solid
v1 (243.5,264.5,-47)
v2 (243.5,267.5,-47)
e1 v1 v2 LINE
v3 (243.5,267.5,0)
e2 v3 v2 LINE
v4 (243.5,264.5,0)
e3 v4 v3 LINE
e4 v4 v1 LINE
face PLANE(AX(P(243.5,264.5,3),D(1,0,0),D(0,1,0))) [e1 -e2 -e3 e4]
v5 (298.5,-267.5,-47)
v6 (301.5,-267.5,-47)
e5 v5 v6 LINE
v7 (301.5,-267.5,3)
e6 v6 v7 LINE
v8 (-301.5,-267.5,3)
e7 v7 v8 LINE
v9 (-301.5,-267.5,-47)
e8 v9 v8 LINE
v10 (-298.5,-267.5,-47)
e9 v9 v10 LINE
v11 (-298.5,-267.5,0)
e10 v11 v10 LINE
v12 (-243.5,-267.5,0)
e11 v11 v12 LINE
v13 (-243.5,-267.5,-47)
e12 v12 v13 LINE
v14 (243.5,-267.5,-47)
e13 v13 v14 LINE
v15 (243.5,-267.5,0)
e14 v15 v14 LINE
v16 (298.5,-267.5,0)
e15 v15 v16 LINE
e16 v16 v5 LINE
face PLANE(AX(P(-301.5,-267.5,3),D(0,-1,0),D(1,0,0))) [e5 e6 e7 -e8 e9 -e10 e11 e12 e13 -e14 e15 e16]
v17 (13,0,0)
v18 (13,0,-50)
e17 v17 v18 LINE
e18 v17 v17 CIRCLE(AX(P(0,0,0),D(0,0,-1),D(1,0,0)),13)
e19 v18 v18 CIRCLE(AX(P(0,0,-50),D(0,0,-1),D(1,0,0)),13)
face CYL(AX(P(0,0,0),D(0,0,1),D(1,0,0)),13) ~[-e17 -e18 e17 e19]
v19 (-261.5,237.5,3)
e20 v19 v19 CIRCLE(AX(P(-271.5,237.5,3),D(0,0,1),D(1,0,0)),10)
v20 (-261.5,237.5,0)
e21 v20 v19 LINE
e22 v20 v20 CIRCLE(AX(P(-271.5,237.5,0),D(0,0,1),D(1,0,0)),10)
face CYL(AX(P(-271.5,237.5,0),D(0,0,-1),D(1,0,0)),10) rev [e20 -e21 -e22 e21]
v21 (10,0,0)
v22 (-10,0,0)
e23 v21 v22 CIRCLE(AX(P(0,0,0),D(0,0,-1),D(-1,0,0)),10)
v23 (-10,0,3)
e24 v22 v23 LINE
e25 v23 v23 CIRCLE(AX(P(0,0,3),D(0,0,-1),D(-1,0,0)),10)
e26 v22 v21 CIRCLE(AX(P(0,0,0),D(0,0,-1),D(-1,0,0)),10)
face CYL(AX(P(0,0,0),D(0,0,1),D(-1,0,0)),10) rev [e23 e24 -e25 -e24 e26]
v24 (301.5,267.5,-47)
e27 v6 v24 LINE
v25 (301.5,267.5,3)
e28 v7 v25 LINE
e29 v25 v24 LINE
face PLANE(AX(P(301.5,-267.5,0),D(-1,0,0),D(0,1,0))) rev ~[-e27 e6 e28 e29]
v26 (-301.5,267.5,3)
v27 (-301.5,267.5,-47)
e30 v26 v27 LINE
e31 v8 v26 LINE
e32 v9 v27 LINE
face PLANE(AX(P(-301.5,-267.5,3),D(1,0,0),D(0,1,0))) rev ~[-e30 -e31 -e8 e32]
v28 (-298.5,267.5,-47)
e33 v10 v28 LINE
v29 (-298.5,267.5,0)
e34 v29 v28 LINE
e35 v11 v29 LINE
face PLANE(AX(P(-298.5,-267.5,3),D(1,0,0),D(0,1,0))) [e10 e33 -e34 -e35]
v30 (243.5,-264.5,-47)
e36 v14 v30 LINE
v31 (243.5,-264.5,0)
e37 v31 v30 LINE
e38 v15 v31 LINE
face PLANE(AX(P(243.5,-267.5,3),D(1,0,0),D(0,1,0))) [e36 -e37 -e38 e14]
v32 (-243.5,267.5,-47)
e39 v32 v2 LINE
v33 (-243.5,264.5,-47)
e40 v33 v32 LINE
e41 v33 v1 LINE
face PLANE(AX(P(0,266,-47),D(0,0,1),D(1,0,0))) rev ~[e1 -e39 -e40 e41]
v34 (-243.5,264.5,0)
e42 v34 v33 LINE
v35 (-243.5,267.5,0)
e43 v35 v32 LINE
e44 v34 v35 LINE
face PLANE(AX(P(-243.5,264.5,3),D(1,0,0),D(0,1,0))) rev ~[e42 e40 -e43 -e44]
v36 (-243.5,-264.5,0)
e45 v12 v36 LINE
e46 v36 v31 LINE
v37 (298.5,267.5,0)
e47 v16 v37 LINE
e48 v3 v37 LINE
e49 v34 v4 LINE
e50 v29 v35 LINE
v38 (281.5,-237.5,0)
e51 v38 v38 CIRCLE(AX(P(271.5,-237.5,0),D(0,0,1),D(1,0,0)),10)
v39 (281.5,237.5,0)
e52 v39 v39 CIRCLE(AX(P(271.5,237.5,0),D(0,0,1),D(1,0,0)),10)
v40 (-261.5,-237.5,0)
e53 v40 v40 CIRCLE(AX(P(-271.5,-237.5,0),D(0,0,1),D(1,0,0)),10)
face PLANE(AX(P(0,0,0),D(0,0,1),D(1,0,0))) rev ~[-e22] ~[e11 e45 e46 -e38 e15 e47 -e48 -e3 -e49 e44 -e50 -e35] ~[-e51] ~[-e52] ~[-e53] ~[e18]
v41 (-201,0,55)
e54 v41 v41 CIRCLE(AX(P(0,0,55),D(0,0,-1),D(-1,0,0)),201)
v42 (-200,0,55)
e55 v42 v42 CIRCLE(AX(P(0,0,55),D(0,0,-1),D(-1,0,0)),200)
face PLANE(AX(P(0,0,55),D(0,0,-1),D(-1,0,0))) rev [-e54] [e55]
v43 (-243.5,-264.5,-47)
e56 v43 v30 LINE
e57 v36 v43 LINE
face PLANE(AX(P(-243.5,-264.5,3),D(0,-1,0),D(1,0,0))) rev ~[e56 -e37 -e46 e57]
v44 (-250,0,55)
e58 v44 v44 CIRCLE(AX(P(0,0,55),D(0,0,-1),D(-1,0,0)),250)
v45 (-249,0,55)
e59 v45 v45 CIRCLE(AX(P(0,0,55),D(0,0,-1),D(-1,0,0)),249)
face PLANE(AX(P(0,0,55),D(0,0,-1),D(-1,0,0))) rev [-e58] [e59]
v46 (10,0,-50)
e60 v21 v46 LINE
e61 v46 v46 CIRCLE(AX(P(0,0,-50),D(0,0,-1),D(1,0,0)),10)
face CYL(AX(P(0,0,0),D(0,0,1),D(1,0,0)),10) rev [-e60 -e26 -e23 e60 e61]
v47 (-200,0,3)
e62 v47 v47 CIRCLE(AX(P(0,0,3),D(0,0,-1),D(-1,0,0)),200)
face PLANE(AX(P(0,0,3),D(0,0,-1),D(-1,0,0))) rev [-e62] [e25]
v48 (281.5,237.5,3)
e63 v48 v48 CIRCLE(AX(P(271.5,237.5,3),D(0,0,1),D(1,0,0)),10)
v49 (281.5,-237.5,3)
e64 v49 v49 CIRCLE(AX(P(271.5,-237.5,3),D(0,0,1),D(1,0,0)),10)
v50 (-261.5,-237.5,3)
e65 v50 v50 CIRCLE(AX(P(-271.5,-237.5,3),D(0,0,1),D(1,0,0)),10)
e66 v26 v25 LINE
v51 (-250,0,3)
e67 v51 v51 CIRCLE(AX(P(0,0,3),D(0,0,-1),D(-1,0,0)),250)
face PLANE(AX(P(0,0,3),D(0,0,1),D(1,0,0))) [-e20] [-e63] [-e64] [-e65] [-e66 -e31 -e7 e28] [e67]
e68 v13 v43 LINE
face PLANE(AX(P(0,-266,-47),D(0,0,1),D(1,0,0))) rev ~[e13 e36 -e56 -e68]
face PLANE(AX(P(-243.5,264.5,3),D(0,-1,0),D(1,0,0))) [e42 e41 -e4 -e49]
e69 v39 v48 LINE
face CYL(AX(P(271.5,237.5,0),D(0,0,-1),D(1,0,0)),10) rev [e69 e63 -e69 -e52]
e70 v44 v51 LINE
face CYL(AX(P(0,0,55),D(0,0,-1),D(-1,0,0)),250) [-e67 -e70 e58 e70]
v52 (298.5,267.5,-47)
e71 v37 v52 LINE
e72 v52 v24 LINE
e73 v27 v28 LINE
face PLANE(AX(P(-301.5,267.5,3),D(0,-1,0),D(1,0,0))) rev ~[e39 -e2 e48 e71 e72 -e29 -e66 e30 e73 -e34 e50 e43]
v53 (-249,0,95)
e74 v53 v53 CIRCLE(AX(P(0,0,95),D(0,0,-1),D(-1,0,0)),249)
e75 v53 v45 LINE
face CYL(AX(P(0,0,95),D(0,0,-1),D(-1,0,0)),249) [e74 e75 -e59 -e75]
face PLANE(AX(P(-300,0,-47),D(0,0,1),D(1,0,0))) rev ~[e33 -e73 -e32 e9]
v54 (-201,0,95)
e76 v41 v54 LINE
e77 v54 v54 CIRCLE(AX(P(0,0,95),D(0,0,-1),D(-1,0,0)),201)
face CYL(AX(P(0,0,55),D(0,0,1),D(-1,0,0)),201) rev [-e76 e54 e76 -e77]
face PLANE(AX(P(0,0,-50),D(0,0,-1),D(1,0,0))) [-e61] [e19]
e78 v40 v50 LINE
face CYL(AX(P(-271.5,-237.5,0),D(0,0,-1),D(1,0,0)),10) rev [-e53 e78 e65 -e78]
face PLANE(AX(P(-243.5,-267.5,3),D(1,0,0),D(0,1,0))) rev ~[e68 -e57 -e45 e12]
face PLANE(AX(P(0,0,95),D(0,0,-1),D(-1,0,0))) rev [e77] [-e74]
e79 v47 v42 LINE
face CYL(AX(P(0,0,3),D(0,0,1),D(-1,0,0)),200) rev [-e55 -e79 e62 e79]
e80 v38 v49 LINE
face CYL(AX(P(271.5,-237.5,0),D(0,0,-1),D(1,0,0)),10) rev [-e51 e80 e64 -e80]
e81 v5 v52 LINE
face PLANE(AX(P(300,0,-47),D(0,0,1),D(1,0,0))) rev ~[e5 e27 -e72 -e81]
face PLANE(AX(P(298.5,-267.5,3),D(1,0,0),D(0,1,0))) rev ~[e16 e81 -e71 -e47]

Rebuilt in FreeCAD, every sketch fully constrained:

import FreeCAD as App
import Part
import Sketcher
Q = App.Units.Quantity

doc = App.newDocument("Part")
body = doc.addObject("PartDesign::Body", "Body")

# Sketch on XZ plane
sketch1 = body.newObject("Sketcher::SketchObject", "Sketch")
sketch1.AttachmentSupport = (doc.getObject("XZ_Plane"), [""])
sketch1.MapMode = "FlatFace"
sketch1.addGeometry([
    Part.LineSegment(App.Vector(-200, 3, 0), App.Vector(-200, 55, 0)),  # 0
    Part.LineSegment(App.Vector(-200, 55, 0), App.Vector(-201, 55, 0)),  # 1
    Part.LineSegment(App.Vector(-201, 55, 0), App.Vector(-201, 95, 0)),  # 2
    Part.LineSegment(App.Vector(-201, 95, 0), App.Vector(-249, 95, 0)),  # 3
    Part.LineSegment(App.Vector(-249, 95, 0), App.Vector(-249, 55, 0)),  # 4
    Part.LineSegment(App.Vector(-249, 55, 0), App.Vector(-250, 55, 0)),  # 5
    Part.LineSegment(App.Vector(-250, 55, 0), App.Vector(-250, 0, 0)),  # 6
    Part.LineSegment(App.Vector(-250, 0, 0), App.Vector(-10, 0, 0)),  # 7
    Part.LineSegment(App.Vector(-10, 0, 0), App.Vector(-10, 3, 0)),  # 8
    Part.LineSegment(App.Vector(-10, 3, 0), App.Vector(-200, 3, 0)),  # 9
], False)
sketch1.addConstraint([
    Sketcher.Constraint("Coincident", 0, 2, 1, 1),
    Sketcher.Constraint("Coincident", 1, 2, 2, 1),
    Sketcher.Constraint("Coincident", 2, 2, 3, 1),
    Sketcher.Constraint("Coincident", 3, 2, 4, 1),
    Sketcher.Constraint("Coincident", 4, 2, 5, 1),
    Sketcher.Constraint("Coincident", 5, 2, 6, 1),
    Sketcher.Constraint("Coincident", 6, 2, 7, 1),
    Sketcher.Constraint("Coincident", 7, 2, 8, 1),
    Sketcher.Constraint("Coincident", 8, 2, 9, 1),
    Sketcher.Constraint("Coincident", 9, 2, 0, 1),
    Sketcher.Constraint("Vertical", 0),
    Sketcher.Constraint("Horizontal", 1),
    Sketcher.Constraint("Vertical", 2),
    Sketcher.Constraint("Horizontal", 3),
    Sketcher.Constraint("Vertical", 4),
    Sketcher.Constraint("Horizontal", 5),
    Sketcher.Constraint("Vertical", 6),
    Sketcher.Constraint("Horizontal", 7),
    Sketcher.Constraint("Vertical", 8),
    Sketcher.Constraint("Horizontal", 9),
    Sketcher.Constraint("PointOnObject", 6, 2, -1),
    Sketcher.Constraint("Horizontal", 1, 2, 4, 2),
    Sketcher.Constraint("Equal", 1, 5),
    Sketcher.Constraint("DistanceX", 1, 2, 1, 1, Q("1 mm")),
    Sketcher.Constraint("DistanceX", 3, 2, 3, 1, Q("48 mm")),
    Sketcher.Constraint("DistanceX", 7, 1, 7, 2, Q("240 mm")),
    Sketcher.Constraint("DistanceY", 0, 1, 0, 2, Q("52 mm")),
    Sketcher.Constraint("DistanceY", 2, 1, 2, 2, Q("40 mm")),
    Sketcher.Constraint("DistanceY", 6, 2, 6, 1, Q("55 mm")),
    Sketcher.Constraint("DistanceX", 0, 2, -1, 1, Q("200 mm")),
])
revolution = body.newObject("PartDesign::Revolution", "Revolution")
revolution.Profile = sketch1
revolution.ReferenceAxis = (sketch1, ["V_Axis"])
revolution.Angle = 360

# Sketch on XY plane
sketch2 = body.newObject("Sketcher::SketchObject", "Sketch001")
sketch2.AttachmentSupport = (doc.getObject("XY_Plane"), [""])
sketch2.MapMode = "FlatFace"
sketch2.addGeometry([
    Part.LineSegment(App.Vector(-301.5, 267.5, 0), App.Vector(-301.5, -267.5, 0)),  # 0
    Part.LineSegment(App.Vector(-301.5, -267.5, 0), App.Vector(301.5, -267.5, 0)),  # 1
    Part.LineSegment(App.Vector(301.5, -267.5, 0), App.Vector(301.5, 267.5, 0)),  # 2
    Part.LineSegment(App.Vector(301.5, 267.5, 0), App.Vector(-301.5, 267.5, 0)),  # 3
    Part.Circle(App.Vector(-271.5, -237.5, 0), App.Vector(0, 0, 1), 10),  # 4
    Part.Circle(App.Vector(271.5, -237.5, 0), App.Vector(0, 0, 1), 10),  # 5
    Part.Circle(App.Vector(-271.5, 237.5, 0), App.Vector(0, 0, 1), 10),  # 6
    Part.Circle(App.Vector(0, 0, 0), App.Vector(0, 0, 1), 201),  # 7
    Part.Circle(App.Vector(271.5, 237.5, 0), App.Vector(0, 0, 1), 10),  # 8
], False)
sketch2.addConstraint([
    Sketcher.Constraint("Coincident", 0, 2, 1, 1),
    Sketcher.Constraint("Coincident", 1, 2, 2, 1),
    Sketcher.Constraint("Coincident", 2, 2, 3, 1),
    Sketcher.Constraint("Coincident", 3, 2, 0, 1),
    Sketcher.Constraint("Vertical", 0),
    Sketcher.Constraint("Horizontal", 1),
    Sketcher.Constraint("Vertical", 2),
    Sketcher.Constraint("Horizontal", 3),
    Sketcher.Constraint("Coincident", 7, 3, -1, 1),
    Sketcher.Constraint("Equal", 4, 5),
    Sketcher.Constraint("Equal", 5, 6),
    Sketcher.Constraint("Equal", 6, 8),
    Sketcher.Constraint("Symmetric", 5, 3, 6, 3, -1, 1),
    Sketcher.Constraint("Symmetric", 4, 3, 8, 3, -1, 1),
    Sketcher.Constraint("Symmetric", 0, 2, 2, 2, -1, 1),
    Sketcher.Constraint("Symmetric", 4, 3, 5, 3, -2),
    Sketcher.Constraint("Diameter", 4, Q("20 mm")),
    Sketcher.Constraint("Diameter", 7, Q("402 mm")),
    Sketcher.Constraint("DistanceX", 1, 1, 1, 2, Q("603 mm")),
    Sketcher.Constraint("DistanceY", 0, 2, 0, 1, Q("535 mm")),
    Sketcher.Constraint("DistanceX", 4, 3, 5, 3, Q("543 mm")),
    Sketcher.Constraint("DistanceY", 4, 3, 6, 3, Q("475 mm")),
])
pad1 = body.newObject("PartDesign::Pad", "Pad")
pad1.Profile = sketch2
pad1.Length = 3

# Sketch on XY plane
sketch3 = body.newObject("Sketcher::SketchObject", "Sketch002")
sketch3.AttachmentSupport = (doc.getObject("XY_Plane"), [""])
sketch3.MapMode = "FlatFace"
sketch3.AttachmentOffset = App.Placement(App.Vector(0, 0, 3), App.Rotation())
sketch3.addGeometry([
    Part.LineSegment(App.Vector(-301.5, 267.5, 0), App.Vector(-301.5, -267.5, 0)),  # 0
    Part.LineSegment(App.Vector(-301.5, -267.5, 0), App.Vector(-298.5, -267.5, 0)),  # 1
    Part.LineSegment(App.Vector(-298.5, -267.5, 0), App.Vector(-298.5, 267.5, 0)),  # 2
    Part.LineSegment(App.Vector(-298.5, 267.5, 0), App.Vector(-301.5, 267.5, 0)),  # 3
    Part.LineSegment(App.Vector(298.5, 267.5, 0), App.Vector(298.5, -267.5, 0)),  # 4
    Part.LineSegment(App.Vector(298.5, -267.5, 0), App.Vector(301.5, -267.5, 0)),  # 5
    Part.LineSegment(App.Vector(301.5, -267.5, 0), App.Vector(301.5, 267.5, 0)),  # 6
    Part.LineSegment(App.Vector(301.5, 267.5, 0), App.Vector(298.5, 267.5, 0)),  # 7
    Part.LineSegment(App.Vector(-243.5, -264.5, 0), App.Vector(-243.5, -267.5, 0)),  # 8
    Part.LineSegment(App.Vector(-243.5, -267.5, 0), App.Vector(243.5, -267.5, 0)),  # 9
    Part.LineSegment(App.Vector(243.5, -267.5, 0), App.Vector(243.5, -264.5, 0)),  # 10
    Part.LineSegment(App.Vector(243.5, -264.5, 0), App.Vector(-243.5, -264.5, 0)),  # 11
    Part.LineSegment(App.Vector(-243.5, 267.5, 0), App.Vector(-243.5, 264.5, 0)),  # 12
    Part.LineSegment(App.Vector(-243.5, 264.5, 0), App.Vector(243.5, 264.5, 0)),  # 13
    Part.LineSegment(App.Vector(243.5, 264.5, 0), App.Vector(243.5, 267.5, 0)),  # 14
    Part.LineSegment(App.Vector(243.5, 267.5, 0), App.Vector(-243.5, 267.5, 0)),  # 15
], False)
sketch3.addConstraint([
    Sketcher.Constraint("Coincident", 0, 2, 1, 1),
    Sketcher.Constraint("Coincident", 1, 2, 2, 1),
    Sketcher.Constraint("Coincident", 2, 2, 3, 1),
    Sketcher.Constraint("Coincident", 3, 2, 0, 1),
    Sketcher.Constraint("Coincident", 4, 2, 5, 1),
    Sketcher.Constraint("Coincident", 5, 2, 6, 1),
    Sketcher.Constraint("Coincident", 6, 2, 7, 1),
    Sketcher.Constraint("Coincident", 7, 2, 4, 1),
    Sketcher.Constraint("Coincident", 8, 2, 9, 1),
    Sketcher.Constraint("Coincident", 9, 2, 10, 1),
    Sketcher.Constraint("Coincident", 10, 2, 11, 1),
    Sketcher.Constraint("Coincident", 11, 2, 8, 1),
    Sketcher.Constraint("Coincident", 12, 2, 13, 1),
    Sketcher.Constraint("Coincident", 13, 2, 14, 1),
    Sketcher.Constraint("Coincident", 14, 2, 15, 1),
    Sketcher.Constraint("Coincident", 15, 2, 12, 1),
    Sketcher.Constraint("Vertical", 0),
    Sketcher.Constraint("Horizontal", 1),
    Sketcher.Constraint("Vertical", 2),
    Sketcher.Constraint("Horizontal", 3),
    Sketcher.Constraint("Vertical", 4),
    Sketcher.Constraint("Horizontal", 5),
    Sketcher.Constraint("Vertical", 6),
    Sketcher.Constraint("Horizontal", 7),
    Sketcher.Constraint("Vertical", 8),
    Sketcher.Constraint("Horizontal", 9),
    Sketcher.Constraint("Vertical", 10),
    Sketcher.Constraint("Horizontal", 11),
    Sketcher.Constraint("Vertical", 12),
    Sketcher.Constraint("Horizontal", 13),
    Sketcher.Constraint("Vertical", 14),
    Sketcher.Constraint("Horizontal", 15),
    Sketcher.Constraint("Symmetric", 2, 2, 4, 2, -1, 1),
    Sketcher.Constraint("Symmetric", 0, 2, 6, 2, -1, 1),
    Sketcher.Constraint("Symmetric", 10, 2, 12, 2, -1, 1),
    Sketcher.Constraint("Symmetric", 8, 2, 14, 2, -1, 1),
    Sketcher.Constraint("Horizontal", 1, 2, 4, 2),
    Sketcher.Constraint("Horizontal", 5, 2, 8, 2),
    Sketcher.Constraint("Vertical", 11, 2, 12, 2),
    Sketcher.Constraint("Equal", 7, 8),
    Sketcher.Constraint("DistanceX", 1, 1, 1, 2, Q("3 mm")),
    Sketcher.Constraint("DistanceX", 9, 1, 9, 2, Q("487 mm")),
    Sketcher.Constraint("DistanceY", 0, 2, 0, 1, Q("535 mm")),
    Sketcher.Constraint("DistanceX", 1, 2, 4, 2, Q("597 mm")),
])
pad2 = body.newObject("PartDesign::Pad", "Pad001")
pad2.Profile = sketch3
pad2.Length = 50
pad2.Reversed = True

# Sketch on XY plane
sketch4 = body.newObject("Sketcher::SketchObject", "Sketch003")
sketch4.AttachmentSupport = (doc.getObject("XY_Plane"), [""])
sketch4.MapMode = "FlatFace"
sketch4.addGeometry([
    Part.Circle(App.Vector(0, 0, 0), App.Vector(0, 0, 1), 13),
    Part.Circle(App.Vector(0, 0, 0), App.Vector(0, 0, 1), 10),
], False)
sketch4.addConstraint([
    Sketcher.Constraint("Coincident", 0, 3, -1, 1),
    Sketcher.Constraint("Coincident", 1, 3, -1, 1),
    Sketcher.Constraint("Diameter", 0, Q("26 mm")),
    Sketcher.Constraint("Diameter", 1, Q("20 mm")),
])
pad3 = body.newObject("PartDesign::Pad", "Pad002")
pad3.Profile = sketch4
pad3.Length = 50
pad3.Reversed = True

doc.recompute()
